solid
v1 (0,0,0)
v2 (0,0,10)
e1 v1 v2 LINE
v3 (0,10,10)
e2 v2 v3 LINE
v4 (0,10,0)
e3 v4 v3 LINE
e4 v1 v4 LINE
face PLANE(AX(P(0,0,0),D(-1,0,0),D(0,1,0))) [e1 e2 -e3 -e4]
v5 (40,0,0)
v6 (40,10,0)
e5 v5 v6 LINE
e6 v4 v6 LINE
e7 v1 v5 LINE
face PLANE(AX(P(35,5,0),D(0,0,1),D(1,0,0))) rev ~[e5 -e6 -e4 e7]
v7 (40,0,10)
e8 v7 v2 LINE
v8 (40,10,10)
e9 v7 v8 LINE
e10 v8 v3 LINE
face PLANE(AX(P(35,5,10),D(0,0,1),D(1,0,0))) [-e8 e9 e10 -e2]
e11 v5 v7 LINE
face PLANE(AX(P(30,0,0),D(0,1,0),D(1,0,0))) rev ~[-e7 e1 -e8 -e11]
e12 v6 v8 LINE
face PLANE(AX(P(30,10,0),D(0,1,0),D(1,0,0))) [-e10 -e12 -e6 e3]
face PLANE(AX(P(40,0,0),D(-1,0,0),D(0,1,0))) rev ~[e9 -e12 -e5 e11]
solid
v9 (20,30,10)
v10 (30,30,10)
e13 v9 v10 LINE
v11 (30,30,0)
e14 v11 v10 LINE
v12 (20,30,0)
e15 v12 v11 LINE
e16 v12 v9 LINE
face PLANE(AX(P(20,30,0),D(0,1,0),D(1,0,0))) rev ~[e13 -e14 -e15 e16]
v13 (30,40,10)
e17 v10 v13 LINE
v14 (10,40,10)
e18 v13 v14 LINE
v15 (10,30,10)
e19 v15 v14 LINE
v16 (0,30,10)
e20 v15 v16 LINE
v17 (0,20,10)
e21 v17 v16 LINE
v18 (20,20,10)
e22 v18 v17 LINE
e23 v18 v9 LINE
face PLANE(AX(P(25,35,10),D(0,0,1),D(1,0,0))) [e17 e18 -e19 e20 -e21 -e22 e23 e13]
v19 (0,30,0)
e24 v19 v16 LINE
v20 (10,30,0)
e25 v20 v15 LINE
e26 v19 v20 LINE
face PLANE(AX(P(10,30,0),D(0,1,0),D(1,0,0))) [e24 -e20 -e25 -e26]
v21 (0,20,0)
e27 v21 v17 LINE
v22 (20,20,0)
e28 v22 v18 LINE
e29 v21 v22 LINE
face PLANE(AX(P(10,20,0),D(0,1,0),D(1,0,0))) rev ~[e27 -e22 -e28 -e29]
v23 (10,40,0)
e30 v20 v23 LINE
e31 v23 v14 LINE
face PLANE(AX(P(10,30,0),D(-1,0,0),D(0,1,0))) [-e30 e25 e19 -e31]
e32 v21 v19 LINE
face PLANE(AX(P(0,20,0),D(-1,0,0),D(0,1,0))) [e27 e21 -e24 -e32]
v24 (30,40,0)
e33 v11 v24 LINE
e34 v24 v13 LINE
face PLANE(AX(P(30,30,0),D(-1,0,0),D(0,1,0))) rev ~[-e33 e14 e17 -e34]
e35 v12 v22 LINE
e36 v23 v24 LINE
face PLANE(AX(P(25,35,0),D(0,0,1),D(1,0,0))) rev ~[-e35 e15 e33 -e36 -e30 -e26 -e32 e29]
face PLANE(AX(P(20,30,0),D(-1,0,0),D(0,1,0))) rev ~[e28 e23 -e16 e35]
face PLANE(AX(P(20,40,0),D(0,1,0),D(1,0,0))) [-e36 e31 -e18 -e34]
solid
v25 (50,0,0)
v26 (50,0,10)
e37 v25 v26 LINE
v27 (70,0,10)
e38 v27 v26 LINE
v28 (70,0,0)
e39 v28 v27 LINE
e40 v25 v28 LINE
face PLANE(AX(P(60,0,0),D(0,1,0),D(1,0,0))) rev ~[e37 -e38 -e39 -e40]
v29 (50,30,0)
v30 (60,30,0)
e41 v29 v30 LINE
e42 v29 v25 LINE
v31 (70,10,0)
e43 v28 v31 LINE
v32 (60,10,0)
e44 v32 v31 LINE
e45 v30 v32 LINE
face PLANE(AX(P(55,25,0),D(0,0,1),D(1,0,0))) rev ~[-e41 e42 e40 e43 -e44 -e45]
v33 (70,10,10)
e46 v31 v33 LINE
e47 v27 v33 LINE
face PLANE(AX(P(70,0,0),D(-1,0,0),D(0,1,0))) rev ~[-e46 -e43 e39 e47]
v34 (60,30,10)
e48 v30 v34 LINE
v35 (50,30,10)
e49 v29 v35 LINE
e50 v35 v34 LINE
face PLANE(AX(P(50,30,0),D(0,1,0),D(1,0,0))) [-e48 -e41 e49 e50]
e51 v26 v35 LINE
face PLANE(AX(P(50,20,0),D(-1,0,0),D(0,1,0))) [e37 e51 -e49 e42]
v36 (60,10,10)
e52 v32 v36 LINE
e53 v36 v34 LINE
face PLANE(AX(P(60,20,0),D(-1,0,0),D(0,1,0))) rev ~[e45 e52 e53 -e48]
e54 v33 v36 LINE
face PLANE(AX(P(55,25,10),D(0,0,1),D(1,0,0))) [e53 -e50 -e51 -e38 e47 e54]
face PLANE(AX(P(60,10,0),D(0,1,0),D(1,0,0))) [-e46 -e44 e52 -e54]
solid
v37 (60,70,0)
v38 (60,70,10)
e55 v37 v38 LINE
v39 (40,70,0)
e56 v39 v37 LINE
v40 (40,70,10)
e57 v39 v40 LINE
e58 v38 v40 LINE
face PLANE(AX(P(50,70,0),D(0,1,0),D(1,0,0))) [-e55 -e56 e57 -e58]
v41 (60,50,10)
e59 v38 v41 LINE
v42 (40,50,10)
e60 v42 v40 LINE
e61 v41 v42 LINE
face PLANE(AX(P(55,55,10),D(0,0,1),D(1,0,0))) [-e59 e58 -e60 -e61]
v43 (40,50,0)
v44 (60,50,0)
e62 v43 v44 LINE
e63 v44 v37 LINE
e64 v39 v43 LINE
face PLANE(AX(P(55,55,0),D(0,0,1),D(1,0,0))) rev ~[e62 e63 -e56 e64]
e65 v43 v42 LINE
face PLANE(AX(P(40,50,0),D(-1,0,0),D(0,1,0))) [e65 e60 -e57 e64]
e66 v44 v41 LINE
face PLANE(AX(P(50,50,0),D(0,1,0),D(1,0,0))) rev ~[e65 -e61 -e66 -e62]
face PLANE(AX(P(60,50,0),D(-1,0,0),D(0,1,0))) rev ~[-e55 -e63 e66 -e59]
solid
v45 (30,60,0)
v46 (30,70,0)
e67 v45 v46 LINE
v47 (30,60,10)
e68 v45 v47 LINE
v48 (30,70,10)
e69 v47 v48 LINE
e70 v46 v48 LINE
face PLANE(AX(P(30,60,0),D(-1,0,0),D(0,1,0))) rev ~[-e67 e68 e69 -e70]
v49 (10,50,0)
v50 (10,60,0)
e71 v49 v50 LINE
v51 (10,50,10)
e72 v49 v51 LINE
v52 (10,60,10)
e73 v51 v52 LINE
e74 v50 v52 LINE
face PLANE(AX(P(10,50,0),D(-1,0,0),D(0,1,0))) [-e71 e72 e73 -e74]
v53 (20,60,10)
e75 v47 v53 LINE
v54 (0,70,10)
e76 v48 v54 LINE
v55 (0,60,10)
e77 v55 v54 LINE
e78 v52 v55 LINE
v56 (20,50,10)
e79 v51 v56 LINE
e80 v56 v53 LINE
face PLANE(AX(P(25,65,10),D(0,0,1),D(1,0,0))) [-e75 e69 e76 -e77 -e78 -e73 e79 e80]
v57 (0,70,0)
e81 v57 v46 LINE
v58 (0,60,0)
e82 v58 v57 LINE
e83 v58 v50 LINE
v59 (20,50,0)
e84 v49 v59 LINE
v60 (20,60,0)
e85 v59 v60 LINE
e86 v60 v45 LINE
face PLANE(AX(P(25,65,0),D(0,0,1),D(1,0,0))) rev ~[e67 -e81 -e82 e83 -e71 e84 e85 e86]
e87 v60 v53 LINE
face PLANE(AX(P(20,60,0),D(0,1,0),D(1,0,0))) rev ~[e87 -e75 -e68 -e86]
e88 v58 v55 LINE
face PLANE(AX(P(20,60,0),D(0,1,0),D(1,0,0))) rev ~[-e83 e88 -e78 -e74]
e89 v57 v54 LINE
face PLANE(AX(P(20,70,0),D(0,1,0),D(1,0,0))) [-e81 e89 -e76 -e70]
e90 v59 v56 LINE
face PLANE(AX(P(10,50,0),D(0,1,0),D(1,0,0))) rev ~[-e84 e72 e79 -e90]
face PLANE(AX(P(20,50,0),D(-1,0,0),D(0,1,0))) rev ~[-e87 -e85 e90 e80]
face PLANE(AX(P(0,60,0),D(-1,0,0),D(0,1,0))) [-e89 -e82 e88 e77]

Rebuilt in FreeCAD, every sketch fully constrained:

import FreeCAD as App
import Part
import Sketcher

V = App.Vector

doc = App.newDocument("Part")
params = doc.addObject("Spreadsheet::Sheet", "Params")
for row, (alias, value) in enumerate([
    ("sketch1_width", "10 mm"),
    ("pad1_length", "10 mm"),
    ("sketch2_width", "10 mm"),
    ("pad2_length", "10 mm"),
    ("sketch3_width", "10 mm"),
    ("pad3_length", "10 mm"),
    ("sketch4_width", "10 mm"),
    ("pad4_length", "10 mm"),
    ("sketch5_width", "10 mm"),
    ("pad5_length", "10 mm"),
    ("sketch6_width", "10 mm"),
    ("pad6_length", "10 mm"),
    ("sketch7_width", "10 mm"),
    ("pad7_length", "10 mm"),
    ("sketch8_width", "10 mm"),
    ("pad8_length", "10 mm"),
    ("sketch9_width", "10 mm"),
    ("pad9_length", "10 mm"),
    ("sketch10_width", "10 mm"),
    ("pad10_length", "10 mm"),
    ("sketch11_width", "10 mm"),
    ("pad11_length", "10 mm"),
    ("sketch12_width", "10 mm"),
    ("pad12_length", "10 mm"),
    ("sketch13_width", "10 mm"),
    ("pad13_length", "10 mm"),
    ("sketch14_width", "10 mm"),
    ("pad14_length", "10 mm"),
    ("sketch15_width", "10 mm"),
    ("pad15_length", "10 mm"),
    ("sketch16_width", "10 mm"),
    ("pad16_length", "10 mm"),
    ("sketch17_width", "10 mm"),
    ("pad17_length", "10 mm"),
    ("sketch18_width", "10 mm"),
    ("pad18_length", "10 mm"),
    ("sketch19_width", "10 mm"),
    ("pad19_length", "10 mm"),
    ("sketch20_width", "10 mm"),
    ("pad20_length", "10 mm"),
], start=1):
    params.set(f"A{row}", alias)
    params.set(f"B{row}", "=" + value)
    params.setAlias(f"B{row}", alias)

body = doc.addObject("PartDesign::Body", "Body")

# Sketch on XY plane
sketch1 = body.newObject("Sketcher::SketchObject", "Sketch")
sketch1.AttachmentSupport = (doc.getObject("XY_Plane"), [""])
sketch1.MapMode = "FlatFace"
sketch1.addGeometry([
    Part.LineSegment(V(10, 10, 0), V(10, 0, 0)),
    Part.LineSegment(V(10, 0, 0), V(20, 0, 0)),
    Part.LineSegment(V(20, 0, 0), V(20, 10, 0)),
    Part.LineSegment(V(20, 10, 0), V(10, 10, 0)),
], False)
sketch1.addConstraint([
    Sketcher.Constraint("Coincident", 0, 2, 1, 1),
    Sketcher.Constraint("Coincident", 1, 2, 2, 1),
    Sketcher.Constraint("Coincident", 2, 2, 3, 1),
    Sketcher.Constraint("Coincident", 3, 2, 0, 1),
    Sketcher.Constraint("Vertical", 0),
    Sketcher.Constraint("Horizontal", 1),
    Sketcher.Constraint("Vertical", 2),
    Sketcher.Constraint("Horizontal", 3),
    Sketcher.Constraint("PointOnObject", 0, 2, -1),
    Sketcher.Constraint("Equal", 3, 0),
    Sketcher.Constraint("DistanceX", 1, 1, 1, 2, 10.0),
    Sketcher.Constraint("DistanceX", -1, 1, 0, 2, 10.0),
])
sketch1.setExpression("Constraints[10]", "Params.sketch1_width")
pad1 = body.newObject("PartDesign::Pad", "Pad")
pad1.Profile = sketch1
pad1.setExpression("Length", "Params.pad1_length")
body2 = doc.addObject("PartDesign::Body", "Body001")

# Sketch on XY plane
sketch2 = body2.newObject("Sketcher::SketchObject", "Sketch001")
sketch2.AttachmentSupport = (doc.getObject("XY_Plane001"), [""])
sketch2.MapMode = "FlatFace"
sketch2.addGeometry([
    Part.LineSegment(V(20, 10, 0), V(20, 0, 0)),
    Part.LineSegment(V(20, 0, 0), V(30, 0, 0)),
    Part.LineSegment(V(30, 0, 0), V(30, 10, 0)),
    Part.LineSegment(V(30, 10, 0), V(20, 10, 0)),
], False)
sketch2.addConstraint([
    Sketcher.Constraint("Coincident", 0, 2, 1, 1),
    Sketcher.Constraint("Coincident", 1, 2, 2, 1),
    Sketcher.Constraint("Coincident", 2, 2, 3, 1),
    Sketcher.Constraint("Coincident", 3, 2, 0, 1),
    Sketcher.Constraint("Vertical", 0),
    Sketcher.Constraint("Horizontal", 1),
    Sketcher.Constraint("Vertical", 2),
    Sketcher.Constraint("Horizontal", 3),
    Sketcher.Constraint("PointOnObject", 0, 2, -1),
    Sketcher.Constraint("Equal", 3, 0),
    Sketcher.Constraint("DistanceX", 1, 1, 1, 2, 10.0),
    Sketcher.Constraint("DistanceX", -1, 1, 0, 2, 20.0),
])
sketch2.setExpression("Constraints[10]", "Params.sketch2_width")
pad2 = body2.newObject("PartDesign::Pad", "Pad001")
pad2.Profile = sketch2
pad2.setExpression("Length", "Params.pad2_length")
body3 = doc.addObject("PartDesign::Body", "Body002")

# Sketch on XY plane
sketch3 = body3.newObject("Sketcher::SketchObject", "Sketch002")
sketch3.AttachmentSupport = (doc.getObject("XY_Plane002"), [""])
sketch3.MapMode = "FlatFace"
sketch3.addGeometry([
    Part.LineSegment(V(30, 10, 0), V(30, 0, 0)),
    Part.LineSegment(V(30, 0, 0), V(40, 0, 0)),
    Part.LineSegment(V(40, 0, 0), V(40, 10, 0)),
    Part.LineSegment(V(40, 10, 0), V(30, 10, 0)),
], False)
sketch3.addConstraint([
    Sketcher.Constraint("Coincident", 0, 2, 1, 1),
    Sketcher.Constraint("Coincident", 1, 2, 2, 1),
    Sketcher.Constraint("Coincident", 2, 2, 3, 1),
    Sketcher.Constraint("Coincident", 3, 2, 0, 1),
    Sketcher.Constraint("Vertical", 0),
    Sketcher.Constraint("Horizontal", 1),
    Sketcher.Constraint("Vertical", 2),
    Sketcher.Constraint("Horizontal", 3),
    Sketcher.Constraint("PointOnObject", 0, 2, -1),
    Sketcher.Constraint("Equal", 3, 0),
    Sketcher.Constraint("DistanceX", 1, 1, 1, 2, 10.0),
    Sketcher.Constraint("DistanceX", -1, 1, 0, 2, 30.0),
])
sketch3.setExpression("Constraints[10]", "Params.sketch3_width")
pad3 = body3.newObject("PartDesign::Pad", "Pad002")
pad3.Profile = sketch3
pad3.setExpression("Length", "Params.pad3_length")
body4 = doc.addObject("PartDesign::Body", "Body003")

# Sketch on XY plane
sketch4 = body4.newObject("Sketcher::SketchObject", "Sketch003")
sketch4.AttachmentSupport = (doc.getObject("XY_Plane003"), [""])
sketch4.MapMode = "FlatFace"
sketch4.addGeometry([
    Part.LineSegment(V(0, 10, 0), V(0, 0, 0)),
    Part.LineSegment(V(0, 0, 0), V(10, 0, 0)),
    Part.LineSegment(V(10, 0, 0), V(10, 10, 0)),
    Part.LineSegment(V(10, 10, 0), V(0, 10, 0)),
], False)
sketch4.addConstraint([
    Sketcher.Constraint("Coincident", 0, 2, 1, 1),
    Sketcher.Constraint("Coincident", 1, 2, 2, 1),
    Sketcher.Constraint("Coincident", 2, 2, 3, 1),
    Sketcher.Constraint("Coincident", 3, 2, 0, 1),
    Sketcher.Constraint("Vertical", 0),
    Sketcher.Constraint("Horizontal", 1),
    Sketcher.Constraint("Vertical", 2),
    Sketcher.Constraint("Horizontal", 3),
    Sketcher.Constraint("Coincident", 0, 2, -1, 1),
    Sketcher.Constraint("Equal", 3, 0),
    Sketcher.Constraint("DistanceX", 1, 1, 1, 2, 10.0),
])
sketch4.setExpression("Constraints[10]", "Params.sketch4_width")
pad4 = body4.newObject("PartDesign::Pad", "Pad003")
pad4.Profile = sketch4
pad4.setExpression("Length", "Params.pad4_length")
doc.recompute()

boolean = body4.newObject("PartDesign::Boolean", "Boolean")
boolean.Type = "Fuse"
boolean.addObjects([body])
doc.recompute()

boolean2 = body4.newObject("PartDesign::Boolean", "Boolean001")
boolean2.Type = "Fuse"
boolean2.addObjects([body2])
doc.recompute()

boolean3 = body4.newObject("PartDesign::Boolean", "Boolean002")
boolean3.Type = "Fuse"
boolean3.addObjects([body3])
body5 = doc.addObject("PartDesign::Body", "Body004")

# Sketch on XY plane
sketch5 = body5.newObject("Sketcher::SketchObject", "Sketch004")
sketch5.AttachmentSupport = (doc.getObject("XY_Plane004"), [""])
sketch5.MapMode = "FlatFace"
sketch5.addGeometry([
    Part.LineSegment(V(10, 30, 0), V(10, 20, 0)),
    Part.LineSegment(V(10, 20, 0), V(20, 20, 0)),
    Part.LineSegment(V(20, 20, 0), V(20, 30, 0)),
    Part.LineSegment(V(20, 30, 0), V(10, 30, 0)),
], False)
sketch5.addConstraint([
    Sketcher.Constraint("Coincident", 0, 2, 1, 1),
    Sketcher.Constraint("Coincident", 1, 2, 2, 1),
    Sketcher.Constraint("Coincident", 2, 2, 3, 1),
    Sketcher.Constraint("Coincident", 3, 2, 0, 1),
    Sketcher.Constraint("Vertical", 0),
    Sketcher.Constraint("Horizontal", 1),
    Sketcher.Constraint("Vertical", 2),
    Sketcher.Constraint("Horizontal", 3),
    Sketcher.Constraint("Equal", 3, 0),
    Sketcher.Constraint("DistanceX", 1, 1, 1, 2, 10.0),
    Sketcher.Constraint("DistanceX", -1, 1, 0, 2, 10.0),
    Sketcher.Constraint("DistanceY", -1, 1, 0, 2, 20.0),
])
sketch5.setExpression("Constraints[9]", "Params.sketch5_width")
pad5 = body5.newObject("PartDesign::Pad", "Pad004")
pad5.Profile = sketch5
pad5.setExpression("Length", "Params.pad5_length")
body6 = doc.addObject("PartDesign::Body", "Body005")

# Sketch on XY plane
sketch6 = body6.newObject("Sketcher::SketchObject", "Sketch005")
sketch6.AttachmentSupport = (doc.getObject("XY_Plane005"), [""])
sketch6.MapMode = "FlatFace"
sketch6.addGeometry([
    Part.LineSegment(V(10, 40, 0), V(10, 30, 0)),
    Part.LineSegment(V(10, 30, 0), V(20, 30, 0)),
    Part.LineSegment(V(20, 30, 0), V(20, 40, 0)),
    Part.LineSegment(V(20, 40, 0), V(10, 40, 0)),
], False)
sketch6.addConstraint([
    Sketcher.Constraint("Coincident", 0, 2, 1, 1),
    Sketcher.Constraint("Coincident", 1, 2, 2, 1),
    Sketcher.Constraint("Coincident", 2, 2, 3, 1),
    Sketcher.Constraint("Coincident", 3, 2, 0, 1),
    Sketcher.Constraint("Vertical", 0),
    Sketcher.Constraint("Horizontal", 1),
    Sketcher.Constraint("Vertical", 2),
    Sketcher.Constraint("Horizontal", 3),
    Sketcher.Constraint("Equal", 3, 0),
    Sketcher.Constraint("DistanceX", 1, 1, 1, 2, 10.0),
    Sketcher.Constraint("DistanceX", -1, 1, 0, 2, 10.0),
    Sketcher.Constraint("DistanceY", -1, 1, 0, 2, 30.0),
])
sketch6.setExpression("Constraints[9]", "Params.sketch6_width")
pad6 = body6.newObject("PartDesign::Pad", "Pad005")
pad6.Profile = sketch6
pad6.setExpression("Length", "Params.pad6_length")
body7 = doc.addObject("PartDesign::Body", "Body006")

# Sketch on XY plane
sketch7 = body7.newObject("Sketcher::SketchObject", "Sketch006")
sketch7.AttachmentSupport = (doc.getObject("XY_Plane006"), [""])
sketch7.MapMode = "FlatFace"
sketch7.addGeometry([
    Part.LineSegment(V(20, 40, 0), V(20, 30, 0)),
    Part.LineSegment(V(20, 30, 0), V(30, 30, 0)),
    Part.LineSegment(V(30, 30, 0), V(30, 40, 0)),
    Part.LineSegment(V(30, 40, 0), V(20, 40, 0)),
], False)
sketch7.addConstraint([
    Sketcher.Constraint("Coincident", 0, 2, 1, 1),
    Sketcher.Constraint("Coincident", 1, 2, 2, 1),
    Sketcher.Constraint("Coincident", 2, 2, 3, 1),
    Sketcher.Constraint("Coincident", 3, 2, 0, 1),
    Sketcher.Constraint("Vertical", 0),
    Sketcher.Constraint("Horizontal", 1),
    Sketcher.Constraint("Vertical", 2),
    Sketcher.Constraint("Horizontal", 3),
    Sketcher.Constraint("Equal", 3, 0),
    Sketcher.Constraint("DistanceX", 1, 1, 1, 2, 10.0),
    Sketcher.Constraint("DistanceX", -1, 1, 0, 2, 20.0),
    Sketcher.Constraint("DistanceY", -1, 1, 0, 2, 30.0),
])
sketch7.setExpression("Constraints[9]", "Params.sketch7_width")
pad7 = body7.newObject("PartDesign::Pad", "Pad006")
pad7.Profile = sketch7
pad7.setExpression("Length", "Params.pad7_length")
body8 = doc.addObject("PartDesign::Body", "Body007")

# Sketch on XY plane
sketch8 = body8.newObject("Sketcher::SketchObject", "Sketch007")
sketch8.AttachmentSupport = (doc.getObject("XY_Plane007"), [""])
sketch8.MapMode = "FlatFace"
sketch8.addGeometry([
    Part.LineSegment(V(0, 30, 0), V(0, 20, 0)),
    Part.LineSegment(V(0, 20, 0), V(10, 20, 0)),
    Part.LineSegment(V(10, 20, 0), V(10, 30, 0)),
    Part.LineSegment(V(10, 30, 0), V(0, 30, 0)),
], False)
sketch8.addConstraint([
    Sketcher.Constraint("Coincident", 0, 2, 1, 1),
    Sketcher.Constraint("Coincident", 1, 2, 2, 1),
    Sketcher.Constraint("Coincident", 2, 2, 3, 1),
    Sketcher.Constraint("Coincident", 3, 2, 0, 1),
    Sketcher.Constraint("Vertical", 0),
    Sketcher.Constraint("Horizontal", 1),
    Sketcher.Constraint("Vertical", 2),
    Sketcher.Constraint("Horizontal", 3),
    Sketcher.Constraint("PointOnObject", 0, 2, -2),
    Sketcher.Constraint("Equal", 3, 0),
    Sketcher.Constraint("DistanceX", 1, 1, 1, 2, 10.0),
    Sketcher.Constraint("DistanceY", -1, 1, 0, 2, 20.0),
])
sketch8.setExpression("Constraints[10]", "Params.sketch8_width")
pad8 = body8.newObject("PartDesign::Pad", "Pad007")
pad8.Profile = sketch8
pad8.setExpression("Length", "Params.pad8_length")
doc.recompute()

boolean4 = body8.newObject("PartDesign::Boolean", "Boolean003")
boolean4.Type = "Fuse"
boolean4.addObjects([body5])
doc.recompute()

boolean5 = body8.newObject("PartDesign::Boolean", "Boolean004")
boolean5.Type = "Fuse"
boolean5.addObjects([body6])
doc.recompute()

boolean6 = body8.newObject("PartDesign::Boolean", "Boolean005")
boolean6.Type = "Fuse"
boolean6.addObjects([body7])
body9 = doc.addObject("PartDesign::Body", "Body008")

# Sketch on XY plane
sketch9 = body9.newObject("Sketcher::SketchObject", "Sketch008")
sketch9.AttachmentSupport = (doc.getObject("XY_Plane008"), [""])
sketch9.MapMode = "FlatFace"
sketch9.addGeometry([
    Part.LineSegment(V(10, 70, 0), V(10, 60, 0)),
    Part.LineSegment(V(10, 60, 0), V(20, 60, 0)),
    Part.LineSegment(V(20, 60, 0), V(20, 70, 0)),
    Part.LineSegment(V(20, 70, 0), V(10, 70, 0)),
], False)
sketch9.addConstraint([
    Sketcher.Constraint("Coincident", 0, 2, 1, 1),
    Sketcher.Constraint("Coincident", 1, 2, 2, 1),
    Sketcher.Constraint("Coincident", 2, 2, 3, 1),
    Sketcher.Constraint("Coincident", 3, 2, 0, 1),
    Sketcher.Constraint("Vertical", 0),
    Sketcher.Constraint("Horizontal", 1),
    Sketcher.Constraint("Vertical", 2),
    Sketcher.Constraint("Horizontal", 3),
    Sketcher.Constraint("Equal", 3, 0),
    Sketcher.Constraint("DistanceX", 1, 1, 1, 2, 10.0),
    Sketcher.Constraint("DistanceX", -1, 1, 0, 2, 10.0),
    Sketcher.Constraint("DistanceY", -1, 1, 0, 2, 60.0),
])
sketch9.setExpression("Constraints[9]", "Params.sketch9_width")
pad9 = body9.newObject("PartDesign::Pad", "Pad008")
pad9.Profile = sketch9
pad9.setExpression("Length", "Params.pad9_length")
body10 = doc.addObject("PartDesign::Body", "Body009")

# Sketch on XY plane
sketch10 = body10.newObject("Sketcher::SketchObject", "Sketch009")
sketch10.AttachmentSupport = (doc.getObject("XY_Plane009"), [""])
sketch10.MapMode = "FlatFace"
sketch10.addGeometry([
    Part.LineSegment(V(20, 70, 0), V(20, 60, 0)),
    Part.LineSegment(V(20, 60, 0), V(30, 60, 0)),
    Part.LineSegment(V(30, 60, 0), V(30, 70, 0)),
    Part.LineSegment(V(30, 70, 0), V(20, 70, 0)),
], False)
sketch10.addConstraint([
    Sketcher.Constraint("Coincident", 0, 2, 1, 1),
    Sketcher.Constraint("Coincident", 1, 2, 2, 1),
    Sketcher.Constraint("Coincident", 2, 2, 3, 1),
    Sketcher.Constraint("Coincident", 3, 2, 0, 1),
    Sketcher.Constraint("Vertical", 0),
    Sketcher.Constraint("Horizontal", 1),
    Sketcher.Constraint("Vertical", 2),
    Sketcher.Constraint("Horizontal", 3),
    Sketcher.Constraint("Equal", 3, 0),
    Sketcher.Constraint("DistanceX", 1, 1, 1, 2, 10.0),
    Sketcher.Constraint("DistanceX", -1, 1, 0, 2, 20.0),
    Sketcher.Constraint("DistanceY", -1, 1, 0, 2, 60.0),
])
sketch10.setExpression("Constraints[9]", "Params.sketch10_width")
pad10 = body10.newObject("PartDesign::Pad", "Pad009")
pad10.Profile = sketch10
pad10.setExpression("Length", "Params.pad10_length")
body11 = doc.addObject("PartDesign::Body", "Body010")

# Sketch on XY plane
sketch11 = body11.newObject("Sketcher::SketchObject", "Sketch010")
sketch11.AttachmentSupport = (doc.getObject("XY_Plane010"), [""])
sketch11.MapMode = "FlatFace"
sketch11.addGeometry([
    Part.LineSegment(V(10, 60, 0), V(10, 50, 0)),
    Part.LineSegment(V(10, 50, 0), V(20, 50, 0)),
    Part.LineSegment(V(20, 50, 0), V(20, 60, 0)),
    Part.LineSegment(V(20, 60, 0), V(10, 60, 0)),
], False)
sketch11.addConstraint([
    Sketcher.Constraint("Coincident", 0, 2, 1, 1),
    Sketcher.Constraint("Coincident", 1, 2, 2, 1),
    Sketcher.Constraint("Coincident", 2, 2, 3, 1),
    Sketcher.Constraint("Coincident", 3, 2, 0, 1),
    Sketcher.Constraint("Vertical", 0),
    Sketcher.Constraint("Horizontal", 1),
    Sketcher.Constraint("Vertical", 2),
    Sketcher.Constraint("Horizontal", 3),
    Sketcher.Constraint("Equal", 3, 0),
    Sketcher.Constraint("DistanceX", 1, 1, 1, 2, 10.0),
    Sketcher.Constraint("DistanceX", -1, 1, 0, 2, 10.0),
    Sketcher.Constraint("DistanceY", -1, 1, 0, 2, 50.0),
])
sketch11.setExpression("Constraints[9]", "Params.sketch11_width")
pad11 = body11.newObject("PartDesign::Pad", "Pad010")
pad11.Profile = sketch11
pad11.setExpression("Length", "Params.pad11_length")
body12 = doc.addObject("PartDesign::Body", "Body011")

# Sketch on XY plane
sketch12 = body12.newObject("Sketcher::SketchObject", "Sketch011")
sketch12.AttachmentSupport = (doc.getObject("XY_Plane011"), [""])
sketch12.MapMode = "FlatFace"
sketch12.addGeometry([
    Part.LineSegment(V(0, 70, 0), V(0, 60, 0)),
    Part.LineSegment(V(0, 60, 0), V(10, 60, 0)),
    Part.LineSegment(V(10, 60, 0), V(10, 70, 0)),
    Part.LineSegment(V(10, 70, 0), V(0, 70, 0)),
], False)
sketch12.addConstraint([
    Sketcher.Constraint("Coincident", 0, 2, 1, 1),
    Sketcher.Constraint("Coincident", 1, 2, 2, 1),
    Sketcher.Constraint("Coincident", 2, 2, 3, 1),
    Sketcher.Constraint("Coincident", 3, 2, 0, 1),
    Sketcher.Constraint("Vertical", 0),
    Sketcher.Constraint("Horizontal", 1),
    Sketcher.Constraint("Vertical", 2),
    Sketcher.Constraint("Horizontal", 3),
    Sketcher.Constraint("PointOnObject", 0, 2, -2),
    Sketcher.Constraint("Equal", 3, 0),
    Sketcher.Constraint("DistanceX", 1, 1, 1, 2, 10.0),
    Sketcher.Constraint("DistanceY", -1, 1, 0, 2, 60.0),
])
sketch12.setExpression("Constraints[10]", "Params.sketch12_width")
pad12 = body12.newObject("PartDesign::Pad", "Pad011")
pad12.Profile = sketch12
pad12.setExpression("Length", "Params.pad12_length")
doc.recompute()

boolean7 = body12.newObject("PartDesign::Boolean", "Boolean006")
boolean7.Type = "Fuse"
boolean7.addObjects([body9])
doc.recompute()

boolean8 = body12.newObject("PartDesign::Boolean", "Boolean007")
boolean8.Type = "Fuse"
boolean8.addObjects([body10])
doc.recompute()

boolean9 = body12.newObject("PartDesign::Boolean", "Boolean008")
boolean9.Type = "Fuse"
boolean9.addObjects([body11])
body13 = doc.addObject("PartDesign::Body", "Body012")

# Sketch on XY plane
sketch13 = body13.newObject("Sketcher::SketchObject", "Sketch012")
sketch13.AttachmentSupport = (doc.getObject("XY_Plane012"), [""])
sketch13.MapMode = "FlatFace"
sketch13.addGeometry([
    Part.LineSegment(V(60, 10, 0), V(60, 0, 0)),
    Part.LineSegment(V(60, 0, 0), V(70, 0, 0)),
    Part.LineSegment(V(70, 0, 0), V(70, 10, 0)),
    Part.LineSegment(V(70, 10, 0), V(60, 10, 0)),
], False)
sketch13.addConstraint([
    Sketcher.Constraint("Coincident", 0, 2, 1, 1),
    Sketcher.Constraint("Coincident", 1, 2, 2, 1),
    Sketcher.Constraint("Coincident", 2, 2, 3, 1),
    Sketcher.Constraint("Coincident", 3, 2, 0, 1),
    Sketcher.Constraint("Vertical", 0),
    Sketcher.Constraint("Horizontal", 1),
    Sketcher.Constraint("Vertical", 2),
    Sketcher.Constraint("Horizontal", 3),
    Sketcher.Constraint("PointOnObject", 0, 2, -1),
    Sketcher.Constraint("Equal", 3, 0),
    Sketcher.Constraint("DistanceX", 1, 1, 1, 2, 10.0),
    Sketcher.Constraint("DistanceX", -1, 1, 0, 2, 60.0),
])
sketch13.setExpression("Constraints[10]", "Params.sketch13_width")
pad13 = body13.newObject("PartDesign::Pad", "Pad012")
pad13.Profile = sketch13
pad13.setExpression("Length", "Params.pad13_length")
body14 = doc.addObject("PartDesign::Body", "Body013")

# Sketch on XY plane
sketch14 = body14.newObject("Sketcher::SketchObject", "Sketch013")
sketch14.AttachmentSupport = (doc.getObject("XY_Plane013"), [""])
sketch14.MapMode = "FlatFace"
sketch14.addGeometry([
    Part.LineSegment(V(50, 20, 0), V(50, 10, 0)),
    Part.LineSegment(V(50, 10, 0), V(60, 10, 0)),
    Part.LineSegment(V(60, 10, 0), V(60, 20, 0)),
    Part.LineSegment(V(60, 20, 0), V(50, 20, 0)),
], False)
sketch14.addConstraint([
    Sketcher.Constraint("Coincident", 0, 2, 1, 1),
    Sketcher.Constraint("Coincident", 1, 2, 2, 1),
    Sketcher.Constraint("Coincident", 2, 2, 3, 1),
    Sketcher.Constraint("Coincident", 3, 2, 0, 1),
    Sketcher.Constraint("Vertical", 0),
    Sketcher.Constraint("Horizontal", 1),
    Sketcher.Constraint("Vertical", 2),
    Sketcher.Constraint("Horizontal", 3),
    Sketcher.Constraint("Equal", 3, 0),
    Sketcher.Constraint("DistanceX", 1, 1, 1, 2, 10.0),
    Sketcher.Constraint("DistanceX", -1, 1, 0, 2, 50.0),
    Sketcher.Constraint("DistanceY", -1, 1, 0, 2, 10.0),
])
sketch14.setExpression("Constraints[9]", "Params.sketch14_width")
pad14 = body14.newObject("PartDesign::Pad", "Pad013")
pad14.Profile = sketch14
pad14.setExpression("Length", "Params.pad14_length")
body15 = doc.addObject("PartDesign::Body", "Body014")

# Sketch on XY plane
sketch15 = body15.newObject("Sketcher::SketchObject", "Sketch014")
sketch15.AttachmentSupport = (doc.getObject("XY_Plane014"), [""])
sketch15.MapMode = "FlatFace"
sketch15.addGeometry([
    Part.LineSegment(V(50, 30, 0), V(50, 20, 0)),
    Part.LineSegment(V(50, 20, 0), V(60, 20, 0)),
    Part.LineSegment(V(60, 20, 0), V(60, 30, 0)),
    Part.LineSegment(V(60, 30, 0), V(50, 30, 0)),
], False)
sketch15.addConstraint([
    Sketcher.Constraint("Coincident", 0, 2, 1, 1),
    Sketcher.Constraint("Coincident", 1, 2, 2, 1),
    Sketcher.Constraint("Coincident", 2, 2, 3, 1),
    Sketcher.Constraint("Coincident", 3, 2, 0, 1),
    Sketcher.Constraint("Vertical", 0),
    Sketcher.Constraint("Horizontal", 1),
    Sketcher.Constraint("Vertical", 2),
    Sketcher.Constraint("Horizontal", 3),
    Sketcher.Constraint("Equal", 3, 0),
    Sketcher.Constraint("DistanceX", 1, 1, 1, 2, 10.0),
    Sketcher.Constraint("DistanceX", -1, 1, 0, 2, 50.0),
    Sketcher.Constraint("DistanceY", -1, 1, 0, 2, 20.0),
])
sketch15.setExpression("Constraints[9]", "Params.sketch15_width")
pad15 = body15.newObject("PartDesign::Pad", "Pad014")
pad15.Profile = sketch15
pad15.setExpression("Length", "Params.pad15_length")
body16 = doc.addObject("PartDesign::Body", "Body015")

# Sketch on XY plane
sketch16 = body16.newObject("Sketcher::SketchObject", "Sketch015")
sketch16.AttachmentSupport = (doc.getObject("XY_Plane015"), [""])
sketch16.MapMode = "FlatFace"
sketch16.addGeometry([
    Part.LineSegment(V(50, 10, 0), V(50, 0, 0)),
    Part.LineSegment(V(50, 0, 0), V(60, 0, 0)),
    Part.LineSegment(V(60, 0, 0), V(60, 10, 0)),
    Part.LineSegment(V(60, 10, 0), V(50, 10, 0)),
], False)
sketch16.addConstraint([
    Sketcher.Constraint("Coincident", 0, 2, 1, 1),
    Sketcher.Constraint("Coincident", 1, 2, 2, 1),
    Sketcher.Constraint("Coincident", 2, 2, 3, 1),
    Sketcher.Constraint("Coincident", 3, 2, 0, 1),
    Sketcher.Constraint("Vertical", 0),
    Sketcher.Constraint("Horizontal", 1),
    Sketcher.Constraint("Vertical", 2),
    Sketcher.Constraint("Horizontal", 3),
    Sketcher.Constraint("PointOnObject", 0, 2, -1),
    Sketcher.Constraint("Equal", 3, 0),
    Sketcher.Constraint("DistanceX", 1, 1, 1, 2, 10.0),
    Sketcher.Constraint("DistanceX", -1, 1, 0, 2, 50.0),
])
sketch16.setExpression("Constraints[10]", "Params.sketch16_width")
pad16 = body16.newObject("PartDesign::Pad", "Pad015")
pad16.Profile = sketch16
pad16.setExpression("Length", "Params.pad16_length")
doc.recompute()

boolean10 = body16.newObject("PartDesign::Boolean", "Boolean009")
boolean10.Type = "Fuse"
boolean10.addObjects([body13])
doc.recompute()

boolean11 = body16.newObject("PartDesign::Boolean", "Boolean010")
boolean11.Type = "Fuse"
boolean11.addObjects([body14])
doc.recompute()

boolean12 = body16.newObject("PartDesign::Boolean", "Boolean011")
boolean12.Type = "Fuse"
boolean12.addObjects([body15])
body17 = doc.addObject("PartDesign::Body", "Body016")

# Sketch on XY plane
sketch17 = body17.newObject("Sketcher::SketchObject", "Sketch016")
sketch17.AttachmentSupport = (doc.getObject("XY_Plane016"), [""])
sketch17.MapMode = "FlatFace"
sketch17.addGeometry([
    Part.LineSegment(V(50, 70, 0), V(50, 60, 0)),
    Part.LineSegment(V(50, 60, 0), V(60, 60, 0)),
    Part.LineSegment(V(60, 60, 0), V(60, 70, 0)),
    Part.LineSegment(V(60, 70, 0), V(50, 70, 0)),
], False)
sketch17.addConstraint([
    Sketcher.Constraint("Coincident", 0, 2, 1, 1),
    Sketcher.Constraint("Coincident", 1, 2, 2, 1),
    Sketcher.Constraint("Coincident", 2, 2, 3, 1),
    Sketcher.Constraint("Coincident", 3, 2, 0, 1),
    Sketcher.Constraint("Vertical", 0),
    Sketcher.Constraint("Horizontal", 1),
    Sketcher.Constraint("Vertical", 2),
    Sketcher.Constraint("Horizontal", 3),
    Sketcher.Constraint("Equal", 3, 0),
    Sketcher.Constraint("DistanceX", 1, 1, 1, 2, 10.0),
    Sketcher.Constraint("DistanceX", -1, 1, 0, 2, 50.0),
    Sketcher.Constraint("DistanceY", -1, 1, 0, 2, 60.0),
])
sketch17.setExpression("Constraints[9]", "Params.sketch17_width")
pad17 = body17.newObject("PartDesign::Pad", "Pad016")
pad17.Profile = sketch17
pad17.setExpression("Length", "Params.pad17_length")
body18 = doc.addObject("PartDesign::Body", "Body017")

# Sketch on XY plane
sketch18 = body18.newObject("Sketcher::SketchObject", "Sketch017")
sketch18.AttachmentSupport = (doc.getObject("XY_Plane017"), [""])
sketch18.MapMode = "FlatFace"
sketch18.addGeometry([
    Part.LineSegment(V(40, 60, 0), V(40, 50, 0)),
    Part.LineSegment(V(40, 50, 0), V(50, 50, 0)),
    Part.LineSegment(V(50, 50, 0), V(50, 60, 0)),
    Part.LineSegment(V(50, 60, 0), V(40, 60, 0)),
], False)
sketch18.addConstraint([
    Sketcher.Constraint("Coincident", 0, 2, 1, 1),
    Sketcher.Constraint("Coincident", 1, 2, 2, 1),
    Sketcher.Constraint("Coincident", 2, 2, 3, 1),
    Sketcher.Constraint("Coincident", 3, 2, 0, 1),
    Sketcher.Constraint("Vertical", 0),
    Sketcher.Constraint("Horizontal", 1),
    Sketcher.Constraint("Vertical", 2),
    Sketcher.Constraint("Horizontal", 3),
    Sketcher.Constraint("Equal", 3, 0),
    Sketcher.Constraint("DistanceX", 1, 1, 1, 2, 10.0),
    Sketcher.Constraint("DistanceX", -1, 1, 0, 2, 40.0),
    Sketcher.Constraint("DistanceY", -1, 1, 0, 2, 50.0),
])
sketch18.setExpression("Constraints[9]", "Params.sketch18_width")
pad18 = body18.newObject("PartDesign::Pad", "Pad017")
pad18.Profile = sketch18
pad18.setExpression("Length", "Params.pad18_length")
body19 = doc.addObject("PartDesign::Body", "Body018")

# Sketch on XY plane
sketch19 = body19.newObject("Sketcher::SketchObject", "Sketch018")
sketch19.AttachmentSupport = (doc.getObject("XY_Plane018"), [""])
sketch19.MapMode = "FlatFace"
sketch19.addGeometry([
    Part.LineSegment(V(50, 60, 0), V(50, 50, 0)),
    Part.LineSegment(V(50, 50, 0), V(60, 50, 0)),
    Part.LineSegment(V(60, 50, 0), V(60, 60, 0)),
    Part.LineSegment(V(60, 60, 0), V(50, 60, 0)),
], False)
sketch19.addConstraint([
    Sketcher.Constraint("Coincident", 0, 2, 1, 1),
    Sketcher.Constraint("Coincident", 1, 2, 2, 1),
    Sketcher.Constraint("Coincident", 2, 2, 3, 1),
    Sketcher.Constraint("Coincident", 3, 2, 0, 1),
    Sketcher.Constraint("Vertical", 0),
    Sketcher.Constraint("Horizontal", 1),
    Sketcher.Constraint("Vertical", 2),
    Sketcher.Constraint("Horizontal", 3),
    Sketcher.Constraint("Equal", 3, 0),
    Sketcher.Constraint("DistanceX", 1, 1, 1, 2, 10.0),
    Sketcher.Constraint("DistanceX", -1, 1, 0, 2, 50.0),
    Sketcher.Constraint("DistanceY", -1, 1, 0, 2, 50.0),
])
sketch19.setExpression("Constraints[9]", "Params.sketch19_width")
pad19 = body19.newObject("PartDesign::Pad", "Pad018")
pad19.Profile = sketch19
pad19.setExpression("Length", "Params.pad19_length")
body20 = doc.addObject("PartDesign::Body", "Body019")

# Sketch on XY plane
sketch20 = body20.newObject("Sketcher::SketchObject", "Sketch019")
sketch20.AttachmentSupport = (doc.getObject("XY_Plane019"), [""])
sketch20.MapMode = "FlatFace"
sketch20.addGeometry([
    Part.LineSegment(V(40, 70, 0), V(40, 60, 0)),
    Part.LineSegment(V(40, 60, 0), V(50, 60, 0)),
    Part.LineSegment(V(50, 60, 0), V(50, 70, 0)),
    Part.LineSegment(V(50, 70, 0), V(40, 70, 0)),
], False)
sketch20.addConstraint([
    Sketcher.Constraint("Coincident", 0, 2, 1, 1),
    Sketcher.Constraint("Coincident", 1, 2, 2, 1),
    Sketcher.Constraint("Coincident", 2, 2, 3, 1),
    Sketcher.Constraint("Coincident", 3, 2, 0, 1),
    Sketcher.Constraint("Vertical", 0),
    Sketcher.Constraint("Horizontal", 1),
    Sketcher.Constraint("Vertical", 2),
    Sketcher.Constraint("Horizontal", 3),
    Sketcher.Constraint("Equal", 3, 0),
    Sketcher.Constraint("DistanceX", 1, 1, 1, 2, 10.0),
    Sketcher.Constraint("DistanceX", -1, 1, 0, 2, 40.0),
    Sketcher.Constraint("DistanceY", -1, 1, 0, 2, 60.0),
])
sketch20.setExpression("Constraints[9]", "Params.sketch20_width")
pad20 = body20.newObject("PartDesign::Pad", "Pad019")
pad20.Profile = sketch20
pad20.setExpression("Length", "Params.pad20_length")
doc.recompute()

boolean13 = body20.newObject("PartDesign::Boolean", "Boolean012")
boolean13.Type = "Fuse"
boolean13.addObjects([body17])
doc.recompute()

boolean14 = body20.newObject("PartDesign::Boolean", "Boolean013")
boolean14.Type = "Fuse"
boolean14.addObjects([body18])
doc.recompute()

boolean15 = body20.newObject("PartDesign::Boolean", "Boolean014")
boolean15.Type = "Fuse"
boolean15.addObjects([body19])

doc.recompute()
